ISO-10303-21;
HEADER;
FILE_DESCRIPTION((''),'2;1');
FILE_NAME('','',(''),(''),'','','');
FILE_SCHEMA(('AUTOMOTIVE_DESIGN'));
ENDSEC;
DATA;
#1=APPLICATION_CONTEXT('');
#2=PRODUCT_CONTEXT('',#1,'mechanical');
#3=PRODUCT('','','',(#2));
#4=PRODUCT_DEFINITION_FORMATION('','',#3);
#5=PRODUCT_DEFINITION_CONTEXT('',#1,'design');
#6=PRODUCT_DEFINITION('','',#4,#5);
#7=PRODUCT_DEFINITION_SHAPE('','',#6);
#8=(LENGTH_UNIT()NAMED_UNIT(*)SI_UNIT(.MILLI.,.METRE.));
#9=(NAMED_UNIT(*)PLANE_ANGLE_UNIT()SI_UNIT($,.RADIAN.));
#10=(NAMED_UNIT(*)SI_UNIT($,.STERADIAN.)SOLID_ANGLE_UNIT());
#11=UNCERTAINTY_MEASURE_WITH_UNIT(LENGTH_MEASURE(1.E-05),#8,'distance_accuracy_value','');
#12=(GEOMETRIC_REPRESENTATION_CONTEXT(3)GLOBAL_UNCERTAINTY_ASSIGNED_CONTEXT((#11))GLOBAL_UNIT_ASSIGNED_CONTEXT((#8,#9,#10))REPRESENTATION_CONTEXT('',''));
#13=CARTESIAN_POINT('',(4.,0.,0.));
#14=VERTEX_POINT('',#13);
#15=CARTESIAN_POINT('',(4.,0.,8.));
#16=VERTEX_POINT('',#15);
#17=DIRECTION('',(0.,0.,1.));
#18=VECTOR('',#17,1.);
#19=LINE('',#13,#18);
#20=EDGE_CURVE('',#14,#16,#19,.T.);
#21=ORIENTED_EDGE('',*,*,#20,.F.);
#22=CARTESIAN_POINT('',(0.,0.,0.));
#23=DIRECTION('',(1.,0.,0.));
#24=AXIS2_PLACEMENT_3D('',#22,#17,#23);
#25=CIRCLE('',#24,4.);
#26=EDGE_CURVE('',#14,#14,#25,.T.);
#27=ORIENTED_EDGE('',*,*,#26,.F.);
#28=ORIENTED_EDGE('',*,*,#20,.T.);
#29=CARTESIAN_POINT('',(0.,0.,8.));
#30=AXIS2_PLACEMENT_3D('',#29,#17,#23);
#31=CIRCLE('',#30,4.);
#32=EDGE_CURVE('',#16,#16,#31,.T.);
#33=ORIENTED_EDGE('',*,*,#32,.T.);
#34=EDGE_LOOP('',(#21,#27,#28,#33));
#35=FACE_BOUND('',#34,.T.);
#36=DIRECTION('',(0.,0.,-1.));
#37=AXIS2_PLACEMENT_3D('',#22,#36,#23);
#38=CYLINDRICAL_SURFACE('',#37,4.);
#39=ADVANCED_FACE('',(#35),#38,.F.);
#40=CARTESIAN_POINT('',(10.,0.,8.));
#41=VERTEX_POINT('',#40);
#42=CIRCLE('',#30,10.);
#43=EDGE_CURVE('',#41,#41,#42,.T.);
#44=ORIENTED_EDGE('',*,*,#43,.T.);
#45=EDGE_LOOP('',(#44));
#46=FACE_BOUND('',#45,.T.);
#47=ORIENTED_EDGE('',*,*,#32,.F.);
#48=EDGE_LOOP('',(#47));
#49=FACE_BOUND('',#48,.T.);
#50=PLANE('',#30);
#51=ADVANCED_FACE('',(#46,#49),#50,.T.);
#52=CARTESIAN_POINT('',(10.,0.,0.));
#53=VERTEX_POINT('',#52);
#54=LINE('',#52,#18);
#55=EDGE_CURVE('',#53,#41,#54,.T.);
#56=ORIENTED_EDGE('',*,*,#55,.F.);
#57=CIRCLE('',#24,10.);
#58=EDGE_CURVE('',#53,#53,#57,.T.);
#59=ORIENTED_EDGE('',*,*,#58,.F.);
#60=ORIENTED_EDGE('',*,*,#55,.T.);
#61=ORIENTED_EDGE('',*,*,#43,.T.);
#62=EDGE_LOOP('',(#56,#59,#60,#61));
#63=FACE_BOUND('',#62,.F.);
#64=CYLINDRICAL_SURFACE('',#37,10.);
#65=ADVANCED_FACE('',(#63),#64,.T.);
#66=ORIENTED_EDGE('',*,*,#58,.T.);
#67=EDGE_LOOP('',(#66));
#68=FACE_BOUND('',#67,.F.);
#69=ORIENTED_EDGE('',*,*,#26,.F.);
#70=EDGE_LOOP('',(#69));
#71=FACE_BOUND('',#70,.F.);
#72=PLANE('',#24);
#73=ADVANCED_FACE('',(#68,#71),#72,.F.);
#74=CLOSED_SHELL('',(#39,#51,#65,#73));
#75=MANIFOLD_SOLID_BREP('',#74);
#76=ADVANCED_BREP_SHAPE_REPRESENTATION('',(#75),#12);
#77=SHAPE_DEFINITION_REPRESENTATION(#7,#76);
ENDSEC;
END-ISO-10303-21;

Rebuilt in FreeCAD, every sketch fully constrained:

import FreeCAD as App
import Part
import Sketcher

doc = App.newDocument("Part")
body = doc.addObject("PartDesign::Body", "Body")

# Sketch on XY plane
sketch1 = doc.addObject("Sketcher::SketchObject", "Sketch")
body.addObject(sketch1)
sketch1.AttachmentSupport = (doc.XY_Plane, [""])
sketch1.MapMode = "FlatFace"
sketch1.addGeometry([
    Part.Circle(App.Vector(0, 0, 0), App.Vector(0, 0, 1), 10),
    Part.Circle(App.Vector(0, 0, 0), App.Vector(0, 0, 1), 4),
], False)
sketch1.addConstraint([
    Sketcher.Constraint("Coincident", 0, 3, -1, 1),
    Sketcher.Constraint("Coincident", 1, 3, -1, 1),
    Sketcher.Constraint("Diameter", 0, 20.0),
    Sketcher.Constraint("Diameter", 1, 8.0),
])
pad1 = doc.addObject("PartDesign::Pad", "Pad")
body.addObject(pad1)
pad1.Profile = sketch1
pad1.Length = 8

doc.recompute()
